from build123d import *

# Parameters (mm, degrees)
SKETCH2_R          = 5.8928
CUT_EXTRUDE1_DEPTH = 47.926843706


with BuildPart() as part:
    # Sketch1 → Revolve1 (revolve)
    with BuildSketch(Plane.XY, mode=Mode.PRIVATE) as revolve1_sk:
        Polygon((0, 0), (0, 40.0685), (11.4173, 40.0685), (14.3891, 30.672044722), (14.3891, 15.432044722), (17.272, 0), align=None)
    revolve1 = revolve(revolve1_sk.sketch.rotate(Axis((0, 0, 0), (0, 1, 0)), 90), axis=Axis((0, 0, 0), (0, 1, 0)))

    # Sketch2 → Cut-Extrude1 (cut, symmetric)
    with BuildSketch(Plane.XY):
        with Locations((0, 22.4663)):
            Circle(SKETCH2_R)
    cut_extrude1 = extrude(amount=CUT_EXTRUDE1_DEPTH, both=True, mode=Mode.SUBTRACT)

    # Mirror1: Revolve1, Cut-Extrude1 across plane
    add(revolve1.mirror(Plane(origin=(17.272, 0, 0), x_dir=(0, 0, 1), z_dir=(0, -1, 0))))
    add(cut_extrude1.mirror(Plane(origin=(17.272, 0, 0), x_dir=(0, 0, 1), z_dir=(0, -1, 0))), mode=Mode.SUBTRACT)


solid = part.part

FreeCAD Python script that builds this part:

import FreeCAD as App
import Part
import Sketcher
Q = App.Units.Quantity


def add_polygon(sketch, points):
    """Adds a closed chain of lines whose ends are joined by coincident constraints."""
    first, n = sketch.GeometryCount, len(points)
    for a, b in zip(points, points[1:] + points[:1]):
        sketch.addGeometry(Part.LineSegment(App.Vector(*a, 0), App.Vector(*b, 0)), False)
    for i in range(n):
        sketch.addConstraint(Sketcher.Constraint("Coincident", first + i, 2, first + (i + 1) % n, 1))

doc = App.newDocument("Part")
body = doc.addObject("PartDesign::Body", "Body")

# Sketch on XY plane
sketch1 = doc.addObject("Sketcher::SketchObject", "Sketch")
body.addObject(sketch1)
sketch1.AttachmentSupport = (doc.XY_Plane, [""])
sketch1.MapMode = "FlatFace"
add_polygon(sketch1, [(0, 40), (0, 0), (17, 0), (14, 15), (14, 31), (11, 40)])  # lines 0-5
sketch1.addConstraint([
    Sketcher.Constraint("Vertical", 0),
    Sketcher.Constraint("Horizontal", 1),
    Sketcher.Constraint("Vertical", 3),
    Sketcher.Constraint("Horizontal", 5),
    Sketcher.Constraint("Coincident", 0, 2, -1, 1),
    Sketcher.Constraint("DistanceY", 3, 1, 3, 2, Q("0.6 in")),
    Sketcher.Constraint("DistanceX", 1, 1, 1, 2, Q("0.68 in")),
    Sketcher.Constraint("Distance", 4, Q("0.388 in")),
    Sketcher.Constraint("DistanceX", 5, 2, 5, 1, Q("0.4495 in")),
    Sketcher.Constraint("DistanceY", 0, 2, 0, 1, Q("1.5775 in")),
    Sketcher.Constraint("DistanceX", 4, 2, 3, 2, Q("0.117 in")),
])
revolution = doc.addObject("PartDesign::Revolution", "Revolution")
body.addObject(revolution)
revolution.Profile = sketch1
revolution.ReferenceAxis = (sketch1, ["V_Axis"])
revolution.Angle = 360

# Sketch on XY plane
sketch2 = doc.addObject("Sketcher::SketchObject", "Sketch001")
body.addObject(sketch2)
sketch2.AttachmentSupport = (doc.XY_Plane, [""])
sketch2.MapMode = "FlatFace"
sketch2.addGeometry(Part.Circle(App.Vector(0, 22, 0), App.Vector(0, 0, 1), 6), False)
sketch2.addConstraint([
    Sketcher.Constraint("PointOnObject", 0, 3, -2),
    Sketcher.Constraint("Diameter", 0, Q("0.464 in")),
    Sketcher.Constraint("DistanceY", -1, 1, 0, 3, Q("0.8845 in")),
])
pocket1 = doc.addObject("PartDesign::Pocket", "Pocket")
body.addObject(pocket1)
pocket1.Profile = sketch2
pocket1.Length = 95.853687
pocket1.Midplane = True
doc.recompute()

mirrored = doc.addObject("PartDesign::Mirrored", "Mirrored")
body.addObject(mirrored)
mirrored.Originals = [revolution, pocket1]
mirrored.MirrorPlane = (doc.XZ_Plane, [""])
body.Tip = mirrored

doc.recompute()
